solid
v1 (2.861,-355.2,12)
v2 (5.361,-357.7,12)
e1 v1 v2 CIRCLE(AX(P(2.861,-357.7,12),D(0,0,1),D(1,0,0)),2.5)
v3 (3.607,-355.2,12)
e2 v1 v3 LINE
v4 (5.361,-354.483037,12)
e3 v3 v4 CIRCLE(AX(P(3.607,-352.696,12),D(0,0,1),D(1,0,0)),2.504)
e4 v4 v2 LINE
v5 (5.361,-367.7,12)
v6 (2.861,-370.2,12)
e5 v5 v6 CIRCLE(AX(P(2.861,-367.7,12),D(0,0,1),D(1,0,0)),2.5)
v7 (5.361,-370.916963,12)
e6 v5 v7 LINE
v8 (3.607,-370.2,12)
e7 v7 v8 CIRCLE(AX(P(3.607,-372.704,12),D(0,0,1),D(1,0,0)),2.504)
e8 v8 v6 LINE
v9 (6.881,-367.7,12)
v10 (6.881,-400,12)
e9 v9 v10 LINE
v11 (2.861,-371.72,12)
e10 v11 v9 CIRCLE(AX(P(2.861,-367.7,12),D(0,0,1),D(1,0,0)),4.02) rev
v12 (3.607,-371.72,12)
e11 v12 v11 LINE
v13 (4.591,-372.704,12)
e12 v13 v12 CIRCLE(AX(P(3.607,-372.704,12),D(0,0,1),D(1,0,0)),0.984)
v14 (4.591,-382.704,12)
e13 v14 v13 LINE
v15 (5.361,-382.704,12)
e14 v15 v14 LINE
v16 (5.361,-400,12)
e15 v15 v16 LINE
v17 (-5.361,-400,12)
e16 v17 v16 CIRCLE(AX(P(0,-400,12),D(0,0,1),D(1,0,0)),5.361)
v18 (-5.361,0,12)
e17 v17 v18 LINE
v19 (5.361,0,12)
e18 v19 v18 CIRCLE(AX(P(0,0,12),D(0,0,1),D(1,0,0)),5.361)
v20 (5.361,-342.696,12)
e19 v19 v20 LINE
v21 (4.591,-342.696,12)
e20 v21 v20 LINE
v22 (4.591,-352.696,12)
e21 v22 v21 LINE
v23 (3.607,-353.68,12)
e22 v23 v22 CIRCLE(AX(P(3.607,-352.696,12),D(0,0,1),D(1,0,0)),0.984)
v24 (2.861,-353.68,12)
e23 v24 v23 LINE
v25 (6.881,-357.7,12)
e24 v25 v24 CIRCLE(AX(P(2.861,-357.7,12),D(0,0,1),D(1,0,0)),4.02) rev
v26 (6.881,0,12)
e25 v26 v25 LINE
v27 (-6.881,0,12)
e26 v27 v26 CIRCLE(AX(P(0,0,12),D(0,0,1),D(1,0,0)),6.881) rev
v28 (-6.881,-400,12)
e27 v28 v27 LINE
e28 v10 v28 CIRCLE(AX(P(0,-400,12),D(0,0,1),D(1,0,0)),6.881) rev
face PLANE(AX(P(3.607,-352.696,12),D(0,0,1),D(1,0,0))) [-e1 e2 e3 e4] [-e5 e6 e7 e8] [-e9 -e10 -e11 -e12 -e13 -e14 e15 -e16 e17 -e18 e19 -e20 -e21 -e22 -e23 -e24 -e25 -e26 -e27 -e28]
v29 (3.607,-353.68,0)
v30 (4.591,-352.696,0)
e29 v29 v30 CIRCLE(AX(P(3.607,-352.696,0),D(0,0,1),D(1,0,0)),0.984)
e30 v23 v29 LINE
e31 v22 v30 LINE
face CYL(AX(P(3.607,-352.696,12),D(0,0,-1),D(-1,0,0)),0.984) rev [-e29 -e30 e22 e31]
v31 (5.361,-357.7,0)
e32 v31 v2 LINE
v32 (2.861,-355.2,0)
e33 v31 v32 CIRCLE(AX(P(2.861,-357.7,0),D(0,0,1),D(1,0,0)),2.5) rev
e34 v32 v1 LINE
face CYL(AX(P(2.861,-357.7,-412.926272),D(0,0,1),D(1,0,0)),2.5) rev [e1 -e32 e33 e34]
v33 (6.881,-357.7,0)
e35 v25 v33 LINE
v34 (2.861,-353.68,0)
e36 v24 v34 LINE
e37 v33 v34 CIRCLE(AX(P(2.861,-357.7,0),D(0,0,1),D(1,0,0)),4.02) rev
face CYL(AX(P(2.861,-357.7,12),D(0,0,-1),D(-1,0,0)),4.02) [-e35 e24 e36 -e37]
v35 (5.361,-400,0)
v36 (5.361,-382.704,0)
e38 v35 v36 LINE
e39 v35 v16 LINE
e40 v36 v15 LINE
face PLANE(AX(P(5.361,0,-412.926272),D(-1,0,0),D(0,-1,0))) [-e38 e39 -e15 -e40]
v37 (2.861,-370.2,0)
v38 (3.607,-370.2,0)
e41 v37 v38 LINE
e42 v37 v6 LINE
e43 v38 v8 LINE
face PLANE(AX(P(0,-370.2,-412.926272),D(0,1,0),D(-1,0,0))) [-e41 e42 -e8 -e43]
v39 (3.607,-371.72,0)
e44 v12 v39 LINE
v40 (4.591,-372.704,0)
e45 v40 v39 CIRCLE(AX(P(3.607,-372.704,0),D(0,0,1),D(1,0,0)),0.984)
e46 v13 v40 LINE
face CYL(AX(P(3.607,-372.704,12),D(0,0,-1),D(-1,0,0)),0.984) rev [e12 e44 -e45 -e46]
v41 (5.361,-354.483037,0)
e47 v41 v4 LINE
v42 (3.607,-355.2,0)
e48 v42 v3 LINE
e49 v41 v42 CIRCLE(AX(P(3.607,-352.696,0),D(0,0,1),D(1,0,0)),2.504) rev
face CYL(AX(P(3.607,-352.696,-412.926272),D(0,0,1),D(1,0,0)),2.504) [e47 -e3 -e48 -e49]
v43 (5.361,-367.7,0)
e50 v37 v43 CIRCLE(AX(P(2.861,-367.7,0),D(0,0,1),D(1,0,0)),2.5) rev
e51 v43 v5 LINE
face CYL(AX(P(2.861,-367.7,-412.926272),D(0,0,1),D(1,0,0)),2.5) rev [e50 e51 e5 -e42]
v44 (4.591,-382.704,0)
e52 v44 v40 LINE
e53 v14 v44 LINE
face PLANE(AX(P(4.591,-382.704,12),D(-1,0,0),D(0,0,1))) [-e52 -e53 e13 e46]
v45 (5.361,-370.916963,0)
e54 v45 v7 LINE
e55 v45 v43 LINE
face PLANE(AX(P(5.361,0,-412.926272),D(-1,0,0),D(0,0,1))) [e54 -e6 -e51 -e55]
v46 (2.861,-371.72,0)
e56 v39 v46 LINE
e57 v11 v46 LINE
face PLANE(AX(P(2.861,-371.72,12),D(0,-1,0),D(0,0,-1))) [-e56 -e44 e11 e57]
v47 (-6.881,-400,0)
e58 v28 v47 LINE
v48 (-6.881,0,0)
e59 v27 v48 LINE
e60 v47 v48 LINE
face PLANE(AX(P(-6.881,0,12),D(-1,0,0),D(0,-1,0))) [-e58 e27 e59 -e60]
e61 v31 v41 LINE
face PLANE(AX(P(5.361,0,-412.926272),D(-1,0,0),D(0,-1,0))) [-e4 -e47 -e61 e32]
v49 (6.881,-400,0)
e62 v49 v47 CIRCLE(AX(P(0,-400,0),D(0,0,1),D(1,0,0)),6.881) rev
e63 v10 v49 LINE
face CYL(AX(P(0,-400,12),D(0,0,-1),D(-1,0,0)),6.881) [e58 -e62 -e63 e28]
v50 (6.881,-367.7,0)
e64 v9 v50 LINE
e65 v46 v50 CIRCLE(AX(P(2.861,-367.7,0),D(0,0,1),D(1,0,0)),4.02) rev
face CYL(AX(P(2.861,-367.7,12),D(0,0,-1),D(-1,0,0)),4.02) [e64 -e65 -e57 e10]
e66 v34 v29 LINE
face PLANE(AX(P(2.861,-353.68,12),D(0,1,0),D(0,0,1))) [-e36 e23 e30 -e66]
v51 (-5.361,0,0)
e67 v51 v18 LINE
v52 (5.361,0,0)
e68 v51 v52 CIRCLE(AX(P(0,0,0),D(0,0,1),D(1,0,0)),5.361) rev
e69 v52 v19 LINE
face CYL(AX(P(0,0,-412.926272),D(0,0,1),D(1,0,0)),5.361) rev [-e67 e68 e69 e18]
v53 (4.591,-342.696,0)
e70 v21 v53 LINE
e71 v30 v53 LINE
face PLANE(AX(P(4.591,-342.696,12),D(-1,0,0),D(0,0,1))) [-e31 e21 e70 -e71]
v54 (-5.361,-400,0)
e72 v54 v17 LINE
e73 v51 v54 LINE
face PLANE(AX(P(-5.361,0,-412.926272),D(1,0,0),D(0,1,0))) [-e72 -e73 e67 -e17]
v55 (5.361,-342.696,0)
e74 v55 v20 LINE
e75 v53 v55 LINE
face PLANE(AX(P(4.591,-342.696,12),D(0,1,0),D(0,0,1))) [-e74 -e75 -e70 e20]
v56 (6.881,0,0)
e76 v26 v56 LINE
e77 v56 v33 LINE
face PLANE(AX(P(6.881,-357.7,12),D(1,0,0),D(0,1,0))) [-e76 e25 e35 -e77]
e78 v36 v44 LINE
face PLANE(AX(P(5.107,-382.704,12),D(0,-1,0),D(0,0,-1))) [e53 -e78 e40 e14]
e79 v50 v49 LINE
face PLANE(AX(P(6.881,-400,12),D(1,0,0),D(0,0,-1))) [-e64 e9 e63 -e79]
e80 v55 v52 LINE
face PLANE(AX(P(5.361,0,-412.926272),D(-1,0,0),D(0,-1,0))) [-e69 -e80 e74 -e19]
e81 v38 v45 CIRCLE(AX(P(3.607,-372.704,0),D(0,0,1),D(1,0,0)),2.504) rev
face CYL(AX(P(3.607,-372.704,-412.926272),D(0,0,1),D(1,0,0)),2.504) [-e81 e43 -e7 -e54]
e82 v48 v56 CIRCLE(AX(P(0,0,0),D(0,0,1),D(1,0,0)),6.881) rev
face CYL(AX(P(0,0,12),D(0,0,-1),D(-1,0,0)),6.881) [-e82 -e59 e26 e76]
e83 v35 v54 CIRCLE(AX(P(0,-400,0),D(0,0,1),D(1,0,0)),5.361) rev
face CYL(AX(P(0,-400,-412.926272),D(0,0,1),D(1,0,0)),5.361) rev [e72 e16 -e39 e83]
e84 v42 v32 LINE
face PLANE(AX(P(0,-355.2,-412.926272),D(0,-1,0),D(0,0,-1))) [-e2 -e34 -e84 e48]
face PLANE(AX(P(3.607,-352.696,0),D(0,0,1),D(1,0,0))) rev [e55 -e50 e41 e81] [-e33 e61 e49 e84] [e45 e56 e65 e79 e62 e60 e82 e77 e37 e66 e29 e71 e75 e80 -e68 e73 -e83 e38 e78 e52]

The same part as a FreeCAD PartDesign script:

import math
import FreeCAD as App
import Part
import Sketcher
from FreeCAD import Vector

doc = App.newDocument("Part")
body = doc.addObject("PartDesign::Body", "Body")

# Sketch on XY plane
sketch1 = body.newObject("Sketcher::SketchObject", "Sketch")
sketch1.AttachmentSupport = (doc.getObject("XY_Plane"), [""])
sketch1.MapMode = "FlatFace"
sketch1.addGeometry(Part.LineSegment(Vector(5.1, -352.7, 0), Vector(5.1, -342.7, 0)), False)
sketch1.addGeometry(Part.LineSegment(Vector(5.1, -342.7, 0), Vector(4.6, -342.7, 0)), False)
sketch1.addGeometry(Part.LineSegment(Vector(4.6, -342.7, 0), Vector(4.6, -352.7, 0)), False)
sketch1.addGeometry(Part.ArcOfCircle(Part.Circle(Vector(3.6, -352.7, 0), Vector(0, 0, 1), 1), math.radians(-90), math.radians(0)), False)
sketch1.addGeometry(Part.LineSegment(Vector(3.6, -353.7, 0), Vector(2.9, -353.7, 0)), False)
sketch1.addGeometry(Part.ArcOfCircle(Part.Circle(Vector(2.9, -357.7, 0), Vector(0, 0, 1), 4), math.radians(90), math.radians(360)), False)
sketch1.addGeometry(Part.LineSegment(Vector(6.9, -357.7, 0), Vector(6.9, 0, 0)), False)
sketch1.addGeometry(Part.ArcOfCircle(Part.Circle(Vector(0, 0, 0), Vector(0, 0, 1), 6.9), math.radians(0), math.radians(180)), False)
sketch1.addGeometry(Part.LineSegment(Vector(-6.9, 0, 0), Vector(-6.9, -400, 0)), False)
sketch1.addGeometry(Part.ArcOfCircle(Part.Circle(Vector(0, -400, 0), Vector(0, 0, 1), 6.9), math.radians(180), math.radians(360)), False)
sketch1.addGeometry(Part.LineSegment(Vector(6.9, -400, 0), Vector(6.9, -367.7, 0)), False)
sketch1.addGeometry(Part.ArcOfCircle(Part.Circle(Vector(2.9, -367.7, 0), Vector(0, 0, 1), 4), math.radians(0), math.radians(270)), False)
sketch1.addGeometry(Part.LineSegment(Vector(2.9, -371.7, 0), Vector(3.6, -371.7, 0)), False)
sketch1.addGeometry(Part.ArcOfCircle(Part.Circle(Vector(3.6, -372.7, 0), Vector(0, 0, 1), 1), math.radians(0), math.radians(90)), False)
sketch1.addGeometry(Part.LineSegment(Vector(4.6, -372.7, 0), Vector(4.6, -382.7, 0)), False)
sketch1.addGeometry(Part.LineSegment(Vector(4.6, -382.7, 0), Vector(5.1, -382.7, 0)), False)
sketch1.addGeometry(Part.LineSegment(Vector(5.1, -382.7, 0), Vector(5.1, -372.7, 0)), False)
sketch1.addGeometry(Part.ArcOfCircle(Part.Circle(Vector(3.6, -372.7, 0), Vector(0, 0, 1), 1.5), math.radians(0), math.radians(90)), False)
sketch1.addGeometry(Part.LineSegment(Vector(3.6, -371.2, 0), Vector(2.9, -371.2, 0)), False)
sketch1.addGeometry(Part.ArcOfCircle(Part.Circle(Vector(2.9, -367.7, 0), Vector(0, 0, 1), 3.5), math.radians(0), math.radians(270)), False)
sketch1.addGeometry(Part.LineSegment(Vector(6.4, -367.7, 0), Vector(6.4, -400, 0)), False)
sketch1.addGeometry(Part.ArcOfCircle(Part.Circle(Vector(0, -400, 0), Vector(0, 0, 1), 6.4), math.radians(180), math.radians(360)), False)
sketch1.addGeometry(Part.LineSegment(Vector(-6.4, -400, 0), Vector(-6.4, 0, 0)), False)
sketch1.addGeometry(Part.ArcOfCircle(Part.Circle(Vector(0, 0, 0), Vector(0, 0, 1), 6.4), math.radians(0), math.radians(180)), False)
sketch1.addGeometry(Part.LineSegment(Vector(6.4, 0, 0), Vector(6.4, -357.7, 0)), False)
sketch1.addGeometry(Part.ArcOfCircle(Part.Circle(Vector(2.9, -357.7, 0), Vector(0, 0, 1), 3.5), math.radians(90), math.radians(360)), False)
sketch1.addGeometry(Part.LineSegment(Vector(2.9, -354.2, 0), Vector(3.6, -354.2, 0)), False)
sketch1.addGeometry(Part.ArcOfCircle(Part.Circle(Vector(3.6, -352.7, 0), Vector(0, 0, 1), 1.5), math.radians(-90), math.radians(0)), False)
sketch1.addConstraint(Sketcher.Constraint("Coincident", 0, 2, 1, 1))
sketch1.addConstraint(Sketcher.Constraint("Coincident", 1, 2, 2, 1))
sketch1.addConstraint(Sketcher.Constraint("Tangent", 2, 2, 3, 2))
sketch1.addConstraint(Sketcher.Constraint("Tangent", 3, 1, 4, 1))
sketch1.addConstraint(Sketcher.Constraint("Tangent", 4, 2, 5, 1))
sketch1.addConstraint(Sketcher.Constraint("Tangent", 5, 2, 6, 1))
sketch1.addConstraint(Sketcher.Constraint("Tangent", 6, 2, 7, 1))
sketch1.addConstraint(Sketcher.Constraint("Tangent", 7, 2, 8, 1))
sketch1.addConstraint(Sketcher.Constraint("Tangent", 8, 2, 9, 1))
sketch1.addConstraint(Sketcher.Constraint("Tangent", 9, 2, 10, 1))
sketch1.addConstraint(Sketcher.Constraint("Tangent", 10, 2, 11, 1))
sketch1.addConstraint(Sketcher.Constraint("Tangent", 11, 2, 12, 1))
sketch1.addConstraint(Sketcher.Constraint("Tangent", 12, 2, 13, 2))
sketch1.addConstraint(Sketcher.Constraint("Tangent", 13, 1, 14, 1))
sketch1.addConstraint(Sketcher.Constraint("Coincident", 14, 2, 15, 1))
sketch1.addConstraint(Sketcher.Constraint("Coincident", 15, 2, 16, 1))
sketch1.addConstraint(Sketcher.Constraint("Tangent", 16, 2, 17, 1))
sketch1.addConstraint(Sketcher.Constraint("Tangent", 17, 2, 18, 1))
sketch1.addConstraint(Sketcher.Constraint("Tangent", 18, 2, 19, 2))
sketch1.addConstraint(Sketcher.Constraint("Tangent", 19, 1, 20, 1))
sketch1.addConstraint(Sketcher.Constraint("Tangent", 20, 2, 21, 2))
sketch1.addConstraint(Sketcher.Constraint("Tangent", 21, 1, 22, 1))
sketch1.addConstraint(Sketcher.Constraint("Tangent", 22, 2, 23, 2))
sketch1.addConstraint(Sketcher.Constraint("Tangent", 23, 1, 24, 1))
sketch1.addConstraint(Sketcher.Constraint("Tangent", 24, 2, 25, 2))
sketch1.addConstraint(Sketcher.Constraint("Tangent", 25, 1, 26, 1))
sketch1.addConstraint(Sketcher.Constraint("Tangent", 26, 2, 27, 1))
sketch1.addConstraint(Sketcher.Constraint("Tangent", 27, 2, 0, 1))
sketch1.addConstraint(Sketcher.Constraint("Vertical", 0))
sketch1.addConstraint(Sketcher.Constraint("Horizontal", 1))
sketch1.addConstraint(Sketcher.Constraint("Vertical", 2))
sketch1.addConstraint(Sketcher.Constraint("Horizontal", 4))
sketch1.addConstraint(Sketcher.Constraint("Vertical", 6))
sketch1.addConstraint(Sketcher.Constraint("Vertical", 8))
sketch1.addConstraint(Sketcher.Constraint("Vertical", 10))
sketch1.addConstraint(Sketcher.Constraint("Horizontal", 12))
sketch1.addConstraint(Sketcher.Constraint("Vertical", 14))
sketch1.addConstraint(Sketcher.Constraint("Horizontal", 15))
sketch1.addConstraint(Sketcher.Constraint("Vertical", 16))
sketch1.addConstraint(Sketcher.Constraint("Horizontal", 18))
sketch1.addConstraint(Sketcher.Constraint("Vertical", 20))
sketch1.addConstraint(Sketcher.Constraint("Vertical", 22))
sketch1.addConstraint(Sketcher.Constraint("Vertical", 24))
sketch1.addConstraint(Sketcher.Constraint("Horizontal", 26))
sketch1.addConstraint(Sketcher.Constraint("Coincident", 7, 3, -1, 1))
sketch1.addConstraint(Sketcher.Constraint("Coincident", 23, 3, -1, 1))
sketch1.addConstraint(Sketcher.Constraint("Coincident", 17, 3, 13, 3))
sketch1.addConstraint(Sketcher.Constraint("Coincident", 19, 3, 11, 3))
sketch1.addConstraint(Sketcher.Constraint("Coincident", 21, 3, 9, 3))
sketch1.addConstraint(Sketcher.Constraint("Coincident", 25, 3, 5, 3))
sketch1.addConstraint(Sketcher.Constraint("Coincident", 27, 3, 3, 3))
sketch1.addConstraint(Sketcher.Constraint("Equal", 7, 9))
sketch1.addConstraint(Sketcher.Constraint("Equal", 5, 11))
sketch1.addConstraint(Sketcher.Constraint("Equal", 3, 13))
sketch1.addConstraint(Sketcher.Constraint("Vertical", 3, 3, 13, 3))
sketch1.addConstraint(Sketcher.Constraint("Equal", 2, 14))
sketch1.addConstraint(Sketcher.Constraint("Radius", 17, 1.5))
sketch1.addConstraint(Sketcher.Constraint("DistanceY", 0, 1, 0, 2, 10.0))
sketch1.addConstraint(Sketcher.Constraint("DistanceY", 8, 2, 8, 1, 400.0))
sketch1.addConstraint(Sketcher.Constraint("Radius", 5, 4.02))
sketch1.addConstraint(Sketcher.Constraint("DistanceY", 6, 1, 6, 2, 357.7))
sketch1.addConstraint(Sketcher.Constraint("DistanceY", 10, 1, 10, 2, 32.3))
sketch1.addConstraint(Sketcher.Constraint("Radius", 3, 0.984))
sketch1.addConstraint(Sketcher.Constraint("Radius", 7, 6.881))
sketch1.addConstraint(Sketcher.Constraint("DistanceX", 4, 2, 4, 1, 0.746))
pad1 = body.newObject("PartDesign::Pad", "Pad")
pad1.Profile = sketch1
pad1.Length = 12

# Sketch on XY plane
sketch2 = body.newObject("Sketcher::SketchObject", "Sketch001")
sketch2.AttachmentSupport = (doc.getObject("XY_Plane"), [""])
sketch2.MapMode = "FlatFace"
sketch2.addGeometry(Part.ArcOfCircle(Part.Circle(Vector(0, -400, 0), Vector(0, 0, 1), 5.36), math.radians(180), math.radians(360)), False)
sketch2.addGeometry(Part.LineSegment(Vector(-5.36, -400, 0), Vector(-5.36, 0, 0)), False)
sketch2.addGeometry(Part.ArcOfCircle(Part.Circle(Vector(0, 0, 0), Vector(0, 0, 1), 5.36), math.radians(0), math.radians(180)), False)
sketch2.addGeometry(Part.LineSegment(Vector(5.36, 0, 0), Vector(5.36, -342.7, 0)), False)
sketch2.addGeometry(Part.LineSegment(Vector(5.36, -342.7, 0), Vector(5.11, -342.7, 0)), False)
sketch2.addGeometry(Part.LineSegment(Vector(5.11, -342.7, 0), Vector(5.11, -352.7, 0)), False)
sketch2.addGeometry(Part.ArcOfCircle(Part.Circle(Vector(3.61, -352.7, 0), Vector(0, 0, 1), 1.5), math.radians(-90), math.radians(0)), False)
sketch2.addGeometry(Part.LineSegment(Vector(3.61, -354.2, 0), Vector(2.86, -354.2, 0)), False)
sketch2.addGeometry(Part.ArcOfCircle(Part.Circle(Vector(2.86, -357.7, 0), Vector(0, 0, 1), 3.5), math.radians(90), math.radians(360)), False)
sketch2.addGeometry(Part.LineSegment(Vector(6.37, -357.7, 0), Vector(6.37, 0, 0)), False)
sketch2.addGeometry(Part.ArcOfCircle(Part.Circle(Vector(0, 0, 0), Vector(0, 0, 1), 6.37), math.radians(0), math.radians(180)), False)
sketch2.addGeometry(Part.LineSegment(Vector(-6.37, 0, 0), Vector(-6.37, -400, 0)), False)
sketch2.addGeometry(Part.ArcOfCircle(Part.Circle(Vector(0, -400, 0), Vector(0, 0, 1), 6.37), math.radians(180), math.radians(360)), False)
sketch2.addGeometry(Part.LineSegment(Vector(6.37, -400, 0), Vector(6.37, -367.7, 0)), False)
sketch2.addGeometry(Part.ArcOfCircle(Part.Circle(Vector(2.86, -367.7, 0), Vector(0, 0, 1), 3.5), math.radians(0), math.radians(270)), False)
sketch2.addGeometry(Part.LineSegment(Vector(2.86, -371.2, 0), Vector(3.61, -371.2, 0)), False)
sketch2.addGeometry(Part.ArcOfCircle(Part.Circle(Vector(3.61, -372.7, 0), Vector(0, 0, 1), 1.5), math.radians(0), math.radians(90)), False)
sketch2.addGeometry(Part.LineSegment(Vector(5.11, -372.7, 0), Vector(5.11, -382.7, 0)), False)
sketch2.addGeometry(Part.LineSegment(Vector(5.11, -382.7, 0), Vector(5.36, -382.7, 0)), False)
sketch2.addGeometry(Part.LineSegment(Vector(5.36, -382.7, 0), Vector(5.36, -400, 0)), False)
sketch2.addGeometry(Part.LineSegment(Vector(5.36, -367.7, 0), Vector(5.36, -370.92, 0)), False)
sketch2.addGeometry(Part.ArcOfCircle(Part.Circle(Vector(3.61, -372.7, 0), Vector(0, 0, 1), 2.5), math.radians(46), math.radians(90)), False)
sketch2.addGeometry(Part.LineSegment(Vector(3.61, -370.2, 0), Vector(2.86, -370.2, 0)), False)
sketch2.addGeometry(Part.ArcOfCircle(Part.Circle(Vector(2.86, -367.7, 0), Vector(0, 0, 1), 2.5), math.radians(0), math.radians(270)), False)
sketch2.addGeometry(Part.LineSegment(Vector(2.86, -355.2, 0), Vector(3.61, -355.2, 0)), False)
sketch2.addGeometry(Part.ArcOfCircle(Part.Circle(Vector(3.61, -352.7, 0), Vector(0, 0, 1), 2.5), math.radians(-90), math.radians(-46)), False)
sketch2.addGeometry(Part.LineSegment(Vector(5.36, -354.48, 0), Vector(5.36, -357.7, 0)), False)
sketch2.addGeometry(Part.ArcOfCircle(Part.Circle(Vector(2.86, -357.7, 0), Vector(0, 0, 1), 2.5), math.radians(90), math.radians(360)), False)
sketch2.addConstraint(Sketcher.Constraint("Tangent", 0, 1, 1, 1))
sketch2.addConstraint(Sketcher.Constraint("Tangent", 1, 2, 2, 2))
sketch2.addConstraint(Sketcher.Constraint("Tangent", 2, 1, 3, 1))
sketch2.addConstraint(Sketcher.Constraint("Coincident", 3, 2, 4, 1))
sketch2.addConstraint(Sketcher.Constraint("Coincident", 4, 2, 5, 1))
sketch2.addConstraint(Sketcher.Constraint("Tangent", 5, 2, 6, 2))
sketch2.addConstraint(Sketcher.Constraint("Tangent", 6, 1, 7, 1))
sketch2.addConstraint(Sketcher.Constraint("Tangent", 7, 2, 8, 1))
sketch2.addConstraint(Sketcher.Constraint("Tangent", 8, 2, 9, 1))
sketch2.addConstraint(Sketcher.Constraint("Tangent", 9, 2, 10, 1))
sketch2.addConstraint(Sketcher.Constraint("Tangent", 10, 2, 11, 1))
sketch2.addConstraint(Sketcher.Constraint("Tangent", 11, 2, 12, 1))
sketch2.addConstraint(Sketcher.Constraint("Tangent", 12, 2, 13, 1))
sketch2.addConstraint(Sketcher.Constraint("Tangent", 13, 2, 14, 1))
sketch2.addConstraint(Sketcher.Constraint("Tangent", 14, 2, 15, 1))
sketch2.addConstraint(Sketcher.Constraint("Tangent", 15, 2, 16, 2))
sketch2.addConstraint(Sketcher.Constraint("Tangent", 16, 1, 17, 1))
sketch2.addConstraint(Sketcher.Constraint("Coincident", 17, 2, 18, 1))
sketch2.addConstraint(Sketcher.Constraint("Coincident", 18, 2, 19, 1))
sketch2.addConstraint(Sketcher.Constraint("Tangent", 19, 2, 0, 2))
sketch2.addConstraint(Sketcher.Constraint("Coincident", 20, 2, 21, 1))
sketch2.addConstraint(Sketcher.Constraint("Tangent", 21, 2, 22, 1))
sketch2.addConstraint(Sketcher.Constraint("Tangent", 22, 2, 23, 2))
sketch2.addConstraint(Sketcher.Constraint("Tangent", 23, 1, 20, 1))
sketch2.addConstraint(Sketcher.Constraint("Tangent", 24, 2, 25, 1))
sketch2.addConstraint(Sketcher.Constraint("Coincident", 25, 2, 26, 1))
sketch2.addConstraint(Sketcher.Constraint("Tangent", 26, 2, 27, 2))
sketch2.addConstraint(Sketcher.Constraint("Tangent", 27, 1, 24, 1))
sketch2.addConstraint(Sketcher.Constraint("Vertical", 1))
sketch2.addConstraint(Sketcher.Constraint("Vertical", 3))
sketch2.addConstraint(Sketcher.Constraint("Horizontal", 4))
sketch2.addConstraint(Sketcher.Constraint("Vertical", 5))
sketch2.addConstraint(Sketcher.Constraint("Horizontal", 7))
sketch2.addConstraint(Sketcher.Constraint("Vertical", 9))
sketch2.addConstraint(Sketcher.Constraint("Vertical", 11))
sketch2.addConstraint(Sketcher.Constraint("Vertical", 13))
sketch2.addConstraint(Sketcher.Constraint("Horizontal", 15))
sketch2.addConstraint(Sketcher.Constraint("Vertical", 17))
sketch2.addConstraint(Sketcher.Constraint("Horizontal", 18))
sketch2.addConstraint(Sketcher.Constraint("Vertical", 19))
sketch2.addConstraint(Sketcher.Constraint("Vertical", 20))
sketch2.addConstraint(Sketcher.Constraint("Horizontal", 22))
sketch2.addConstraint(Sketcher.Constraint("Horizontal", 24))
sketch2.addConstraint(Sketcher.Constraint("Vertical", 26))
sketch2.addConstraint(Sketcher.Constraint("Coincident", 2, 3, -1, 1))
sketch2.addConstraint(Sketcher.Constraint("Coincident", 10, 3, -1, 1))
sketch2.addConstraint(Sketcher.Constraint("Coincident", 12, 3, 0, 3))
sketch2.addConstraint(Sketcher.Constraint("Coincident", 21, 3, 16, 3))
sketch2.addConstraint(Sketcher.Constraint("Coincident", 23, 3, 14, 3))
sketch2.addConstraint(Sketcher.Constraint("Coincident", 25, 3, 6, 3))
sketch2.addConstraint(Sketcher.Constraint("Coincident", 27, 3, 8, 3))
sketch2.addConstraint(Sketcher.Constraint("Equal", 0, 2))
sketch2.addConstraint(Sketcher.Constraint("Equal", 8, 14))
sketch2.addConstraint(Sketcher.Constraint("Equal", 6, 16))
sketch2.addConstraint(Sketcher.Constraint("Equal", 21, 25))
sketch2.addConstraint(Sketcher.Constraint("Vertical", 6, 3, 16, 3))
sketch2.addConstraint(Sketcher.Constraint("Vertical", 19, 2, 20, 2))
sketch2.addConstraint(Sketcher.Constraint("Equal", 5, 17))
sketch2.addConstraint(Sketcher.Constraint("Radius", 6, 1.5))
sketch2.addConstraint(Sketcher.Constraint("Radius", 23, 2.5))
sketch2.addConstraint(Sketcher.Constraint("DistanceY", 1, 1, 1, 2, 400.0))
sketch2.addConstraint(Sketcher.Constraint("DistanceY", 5, 2, 5, 1, 10.0))
sketch2.addConstraint(Sketcher.Constraint("DistanceY", 9, 1, 9, 2, 357.7))
sketch2.addConstraint(Sketcher.Constraint("DistanceY", 13, 1, 13, 2, 32.3))
sketch2.addConstraint(Sketcher.Constraint("Radius", 0, 5.361))
sketch2.addConstraint(Sketcher.Constraint("Radius", 8, 3.504))
sketch2.addConstraint(Sketcher.Constraint("DistanceX", 4, 2, 4, 1, 0.254))
pad2 = body.newObject("PartDesign::Pad", "Pad001")
pad2.Profile = sketch2
pad2.Length = 12

doc.recompute()
